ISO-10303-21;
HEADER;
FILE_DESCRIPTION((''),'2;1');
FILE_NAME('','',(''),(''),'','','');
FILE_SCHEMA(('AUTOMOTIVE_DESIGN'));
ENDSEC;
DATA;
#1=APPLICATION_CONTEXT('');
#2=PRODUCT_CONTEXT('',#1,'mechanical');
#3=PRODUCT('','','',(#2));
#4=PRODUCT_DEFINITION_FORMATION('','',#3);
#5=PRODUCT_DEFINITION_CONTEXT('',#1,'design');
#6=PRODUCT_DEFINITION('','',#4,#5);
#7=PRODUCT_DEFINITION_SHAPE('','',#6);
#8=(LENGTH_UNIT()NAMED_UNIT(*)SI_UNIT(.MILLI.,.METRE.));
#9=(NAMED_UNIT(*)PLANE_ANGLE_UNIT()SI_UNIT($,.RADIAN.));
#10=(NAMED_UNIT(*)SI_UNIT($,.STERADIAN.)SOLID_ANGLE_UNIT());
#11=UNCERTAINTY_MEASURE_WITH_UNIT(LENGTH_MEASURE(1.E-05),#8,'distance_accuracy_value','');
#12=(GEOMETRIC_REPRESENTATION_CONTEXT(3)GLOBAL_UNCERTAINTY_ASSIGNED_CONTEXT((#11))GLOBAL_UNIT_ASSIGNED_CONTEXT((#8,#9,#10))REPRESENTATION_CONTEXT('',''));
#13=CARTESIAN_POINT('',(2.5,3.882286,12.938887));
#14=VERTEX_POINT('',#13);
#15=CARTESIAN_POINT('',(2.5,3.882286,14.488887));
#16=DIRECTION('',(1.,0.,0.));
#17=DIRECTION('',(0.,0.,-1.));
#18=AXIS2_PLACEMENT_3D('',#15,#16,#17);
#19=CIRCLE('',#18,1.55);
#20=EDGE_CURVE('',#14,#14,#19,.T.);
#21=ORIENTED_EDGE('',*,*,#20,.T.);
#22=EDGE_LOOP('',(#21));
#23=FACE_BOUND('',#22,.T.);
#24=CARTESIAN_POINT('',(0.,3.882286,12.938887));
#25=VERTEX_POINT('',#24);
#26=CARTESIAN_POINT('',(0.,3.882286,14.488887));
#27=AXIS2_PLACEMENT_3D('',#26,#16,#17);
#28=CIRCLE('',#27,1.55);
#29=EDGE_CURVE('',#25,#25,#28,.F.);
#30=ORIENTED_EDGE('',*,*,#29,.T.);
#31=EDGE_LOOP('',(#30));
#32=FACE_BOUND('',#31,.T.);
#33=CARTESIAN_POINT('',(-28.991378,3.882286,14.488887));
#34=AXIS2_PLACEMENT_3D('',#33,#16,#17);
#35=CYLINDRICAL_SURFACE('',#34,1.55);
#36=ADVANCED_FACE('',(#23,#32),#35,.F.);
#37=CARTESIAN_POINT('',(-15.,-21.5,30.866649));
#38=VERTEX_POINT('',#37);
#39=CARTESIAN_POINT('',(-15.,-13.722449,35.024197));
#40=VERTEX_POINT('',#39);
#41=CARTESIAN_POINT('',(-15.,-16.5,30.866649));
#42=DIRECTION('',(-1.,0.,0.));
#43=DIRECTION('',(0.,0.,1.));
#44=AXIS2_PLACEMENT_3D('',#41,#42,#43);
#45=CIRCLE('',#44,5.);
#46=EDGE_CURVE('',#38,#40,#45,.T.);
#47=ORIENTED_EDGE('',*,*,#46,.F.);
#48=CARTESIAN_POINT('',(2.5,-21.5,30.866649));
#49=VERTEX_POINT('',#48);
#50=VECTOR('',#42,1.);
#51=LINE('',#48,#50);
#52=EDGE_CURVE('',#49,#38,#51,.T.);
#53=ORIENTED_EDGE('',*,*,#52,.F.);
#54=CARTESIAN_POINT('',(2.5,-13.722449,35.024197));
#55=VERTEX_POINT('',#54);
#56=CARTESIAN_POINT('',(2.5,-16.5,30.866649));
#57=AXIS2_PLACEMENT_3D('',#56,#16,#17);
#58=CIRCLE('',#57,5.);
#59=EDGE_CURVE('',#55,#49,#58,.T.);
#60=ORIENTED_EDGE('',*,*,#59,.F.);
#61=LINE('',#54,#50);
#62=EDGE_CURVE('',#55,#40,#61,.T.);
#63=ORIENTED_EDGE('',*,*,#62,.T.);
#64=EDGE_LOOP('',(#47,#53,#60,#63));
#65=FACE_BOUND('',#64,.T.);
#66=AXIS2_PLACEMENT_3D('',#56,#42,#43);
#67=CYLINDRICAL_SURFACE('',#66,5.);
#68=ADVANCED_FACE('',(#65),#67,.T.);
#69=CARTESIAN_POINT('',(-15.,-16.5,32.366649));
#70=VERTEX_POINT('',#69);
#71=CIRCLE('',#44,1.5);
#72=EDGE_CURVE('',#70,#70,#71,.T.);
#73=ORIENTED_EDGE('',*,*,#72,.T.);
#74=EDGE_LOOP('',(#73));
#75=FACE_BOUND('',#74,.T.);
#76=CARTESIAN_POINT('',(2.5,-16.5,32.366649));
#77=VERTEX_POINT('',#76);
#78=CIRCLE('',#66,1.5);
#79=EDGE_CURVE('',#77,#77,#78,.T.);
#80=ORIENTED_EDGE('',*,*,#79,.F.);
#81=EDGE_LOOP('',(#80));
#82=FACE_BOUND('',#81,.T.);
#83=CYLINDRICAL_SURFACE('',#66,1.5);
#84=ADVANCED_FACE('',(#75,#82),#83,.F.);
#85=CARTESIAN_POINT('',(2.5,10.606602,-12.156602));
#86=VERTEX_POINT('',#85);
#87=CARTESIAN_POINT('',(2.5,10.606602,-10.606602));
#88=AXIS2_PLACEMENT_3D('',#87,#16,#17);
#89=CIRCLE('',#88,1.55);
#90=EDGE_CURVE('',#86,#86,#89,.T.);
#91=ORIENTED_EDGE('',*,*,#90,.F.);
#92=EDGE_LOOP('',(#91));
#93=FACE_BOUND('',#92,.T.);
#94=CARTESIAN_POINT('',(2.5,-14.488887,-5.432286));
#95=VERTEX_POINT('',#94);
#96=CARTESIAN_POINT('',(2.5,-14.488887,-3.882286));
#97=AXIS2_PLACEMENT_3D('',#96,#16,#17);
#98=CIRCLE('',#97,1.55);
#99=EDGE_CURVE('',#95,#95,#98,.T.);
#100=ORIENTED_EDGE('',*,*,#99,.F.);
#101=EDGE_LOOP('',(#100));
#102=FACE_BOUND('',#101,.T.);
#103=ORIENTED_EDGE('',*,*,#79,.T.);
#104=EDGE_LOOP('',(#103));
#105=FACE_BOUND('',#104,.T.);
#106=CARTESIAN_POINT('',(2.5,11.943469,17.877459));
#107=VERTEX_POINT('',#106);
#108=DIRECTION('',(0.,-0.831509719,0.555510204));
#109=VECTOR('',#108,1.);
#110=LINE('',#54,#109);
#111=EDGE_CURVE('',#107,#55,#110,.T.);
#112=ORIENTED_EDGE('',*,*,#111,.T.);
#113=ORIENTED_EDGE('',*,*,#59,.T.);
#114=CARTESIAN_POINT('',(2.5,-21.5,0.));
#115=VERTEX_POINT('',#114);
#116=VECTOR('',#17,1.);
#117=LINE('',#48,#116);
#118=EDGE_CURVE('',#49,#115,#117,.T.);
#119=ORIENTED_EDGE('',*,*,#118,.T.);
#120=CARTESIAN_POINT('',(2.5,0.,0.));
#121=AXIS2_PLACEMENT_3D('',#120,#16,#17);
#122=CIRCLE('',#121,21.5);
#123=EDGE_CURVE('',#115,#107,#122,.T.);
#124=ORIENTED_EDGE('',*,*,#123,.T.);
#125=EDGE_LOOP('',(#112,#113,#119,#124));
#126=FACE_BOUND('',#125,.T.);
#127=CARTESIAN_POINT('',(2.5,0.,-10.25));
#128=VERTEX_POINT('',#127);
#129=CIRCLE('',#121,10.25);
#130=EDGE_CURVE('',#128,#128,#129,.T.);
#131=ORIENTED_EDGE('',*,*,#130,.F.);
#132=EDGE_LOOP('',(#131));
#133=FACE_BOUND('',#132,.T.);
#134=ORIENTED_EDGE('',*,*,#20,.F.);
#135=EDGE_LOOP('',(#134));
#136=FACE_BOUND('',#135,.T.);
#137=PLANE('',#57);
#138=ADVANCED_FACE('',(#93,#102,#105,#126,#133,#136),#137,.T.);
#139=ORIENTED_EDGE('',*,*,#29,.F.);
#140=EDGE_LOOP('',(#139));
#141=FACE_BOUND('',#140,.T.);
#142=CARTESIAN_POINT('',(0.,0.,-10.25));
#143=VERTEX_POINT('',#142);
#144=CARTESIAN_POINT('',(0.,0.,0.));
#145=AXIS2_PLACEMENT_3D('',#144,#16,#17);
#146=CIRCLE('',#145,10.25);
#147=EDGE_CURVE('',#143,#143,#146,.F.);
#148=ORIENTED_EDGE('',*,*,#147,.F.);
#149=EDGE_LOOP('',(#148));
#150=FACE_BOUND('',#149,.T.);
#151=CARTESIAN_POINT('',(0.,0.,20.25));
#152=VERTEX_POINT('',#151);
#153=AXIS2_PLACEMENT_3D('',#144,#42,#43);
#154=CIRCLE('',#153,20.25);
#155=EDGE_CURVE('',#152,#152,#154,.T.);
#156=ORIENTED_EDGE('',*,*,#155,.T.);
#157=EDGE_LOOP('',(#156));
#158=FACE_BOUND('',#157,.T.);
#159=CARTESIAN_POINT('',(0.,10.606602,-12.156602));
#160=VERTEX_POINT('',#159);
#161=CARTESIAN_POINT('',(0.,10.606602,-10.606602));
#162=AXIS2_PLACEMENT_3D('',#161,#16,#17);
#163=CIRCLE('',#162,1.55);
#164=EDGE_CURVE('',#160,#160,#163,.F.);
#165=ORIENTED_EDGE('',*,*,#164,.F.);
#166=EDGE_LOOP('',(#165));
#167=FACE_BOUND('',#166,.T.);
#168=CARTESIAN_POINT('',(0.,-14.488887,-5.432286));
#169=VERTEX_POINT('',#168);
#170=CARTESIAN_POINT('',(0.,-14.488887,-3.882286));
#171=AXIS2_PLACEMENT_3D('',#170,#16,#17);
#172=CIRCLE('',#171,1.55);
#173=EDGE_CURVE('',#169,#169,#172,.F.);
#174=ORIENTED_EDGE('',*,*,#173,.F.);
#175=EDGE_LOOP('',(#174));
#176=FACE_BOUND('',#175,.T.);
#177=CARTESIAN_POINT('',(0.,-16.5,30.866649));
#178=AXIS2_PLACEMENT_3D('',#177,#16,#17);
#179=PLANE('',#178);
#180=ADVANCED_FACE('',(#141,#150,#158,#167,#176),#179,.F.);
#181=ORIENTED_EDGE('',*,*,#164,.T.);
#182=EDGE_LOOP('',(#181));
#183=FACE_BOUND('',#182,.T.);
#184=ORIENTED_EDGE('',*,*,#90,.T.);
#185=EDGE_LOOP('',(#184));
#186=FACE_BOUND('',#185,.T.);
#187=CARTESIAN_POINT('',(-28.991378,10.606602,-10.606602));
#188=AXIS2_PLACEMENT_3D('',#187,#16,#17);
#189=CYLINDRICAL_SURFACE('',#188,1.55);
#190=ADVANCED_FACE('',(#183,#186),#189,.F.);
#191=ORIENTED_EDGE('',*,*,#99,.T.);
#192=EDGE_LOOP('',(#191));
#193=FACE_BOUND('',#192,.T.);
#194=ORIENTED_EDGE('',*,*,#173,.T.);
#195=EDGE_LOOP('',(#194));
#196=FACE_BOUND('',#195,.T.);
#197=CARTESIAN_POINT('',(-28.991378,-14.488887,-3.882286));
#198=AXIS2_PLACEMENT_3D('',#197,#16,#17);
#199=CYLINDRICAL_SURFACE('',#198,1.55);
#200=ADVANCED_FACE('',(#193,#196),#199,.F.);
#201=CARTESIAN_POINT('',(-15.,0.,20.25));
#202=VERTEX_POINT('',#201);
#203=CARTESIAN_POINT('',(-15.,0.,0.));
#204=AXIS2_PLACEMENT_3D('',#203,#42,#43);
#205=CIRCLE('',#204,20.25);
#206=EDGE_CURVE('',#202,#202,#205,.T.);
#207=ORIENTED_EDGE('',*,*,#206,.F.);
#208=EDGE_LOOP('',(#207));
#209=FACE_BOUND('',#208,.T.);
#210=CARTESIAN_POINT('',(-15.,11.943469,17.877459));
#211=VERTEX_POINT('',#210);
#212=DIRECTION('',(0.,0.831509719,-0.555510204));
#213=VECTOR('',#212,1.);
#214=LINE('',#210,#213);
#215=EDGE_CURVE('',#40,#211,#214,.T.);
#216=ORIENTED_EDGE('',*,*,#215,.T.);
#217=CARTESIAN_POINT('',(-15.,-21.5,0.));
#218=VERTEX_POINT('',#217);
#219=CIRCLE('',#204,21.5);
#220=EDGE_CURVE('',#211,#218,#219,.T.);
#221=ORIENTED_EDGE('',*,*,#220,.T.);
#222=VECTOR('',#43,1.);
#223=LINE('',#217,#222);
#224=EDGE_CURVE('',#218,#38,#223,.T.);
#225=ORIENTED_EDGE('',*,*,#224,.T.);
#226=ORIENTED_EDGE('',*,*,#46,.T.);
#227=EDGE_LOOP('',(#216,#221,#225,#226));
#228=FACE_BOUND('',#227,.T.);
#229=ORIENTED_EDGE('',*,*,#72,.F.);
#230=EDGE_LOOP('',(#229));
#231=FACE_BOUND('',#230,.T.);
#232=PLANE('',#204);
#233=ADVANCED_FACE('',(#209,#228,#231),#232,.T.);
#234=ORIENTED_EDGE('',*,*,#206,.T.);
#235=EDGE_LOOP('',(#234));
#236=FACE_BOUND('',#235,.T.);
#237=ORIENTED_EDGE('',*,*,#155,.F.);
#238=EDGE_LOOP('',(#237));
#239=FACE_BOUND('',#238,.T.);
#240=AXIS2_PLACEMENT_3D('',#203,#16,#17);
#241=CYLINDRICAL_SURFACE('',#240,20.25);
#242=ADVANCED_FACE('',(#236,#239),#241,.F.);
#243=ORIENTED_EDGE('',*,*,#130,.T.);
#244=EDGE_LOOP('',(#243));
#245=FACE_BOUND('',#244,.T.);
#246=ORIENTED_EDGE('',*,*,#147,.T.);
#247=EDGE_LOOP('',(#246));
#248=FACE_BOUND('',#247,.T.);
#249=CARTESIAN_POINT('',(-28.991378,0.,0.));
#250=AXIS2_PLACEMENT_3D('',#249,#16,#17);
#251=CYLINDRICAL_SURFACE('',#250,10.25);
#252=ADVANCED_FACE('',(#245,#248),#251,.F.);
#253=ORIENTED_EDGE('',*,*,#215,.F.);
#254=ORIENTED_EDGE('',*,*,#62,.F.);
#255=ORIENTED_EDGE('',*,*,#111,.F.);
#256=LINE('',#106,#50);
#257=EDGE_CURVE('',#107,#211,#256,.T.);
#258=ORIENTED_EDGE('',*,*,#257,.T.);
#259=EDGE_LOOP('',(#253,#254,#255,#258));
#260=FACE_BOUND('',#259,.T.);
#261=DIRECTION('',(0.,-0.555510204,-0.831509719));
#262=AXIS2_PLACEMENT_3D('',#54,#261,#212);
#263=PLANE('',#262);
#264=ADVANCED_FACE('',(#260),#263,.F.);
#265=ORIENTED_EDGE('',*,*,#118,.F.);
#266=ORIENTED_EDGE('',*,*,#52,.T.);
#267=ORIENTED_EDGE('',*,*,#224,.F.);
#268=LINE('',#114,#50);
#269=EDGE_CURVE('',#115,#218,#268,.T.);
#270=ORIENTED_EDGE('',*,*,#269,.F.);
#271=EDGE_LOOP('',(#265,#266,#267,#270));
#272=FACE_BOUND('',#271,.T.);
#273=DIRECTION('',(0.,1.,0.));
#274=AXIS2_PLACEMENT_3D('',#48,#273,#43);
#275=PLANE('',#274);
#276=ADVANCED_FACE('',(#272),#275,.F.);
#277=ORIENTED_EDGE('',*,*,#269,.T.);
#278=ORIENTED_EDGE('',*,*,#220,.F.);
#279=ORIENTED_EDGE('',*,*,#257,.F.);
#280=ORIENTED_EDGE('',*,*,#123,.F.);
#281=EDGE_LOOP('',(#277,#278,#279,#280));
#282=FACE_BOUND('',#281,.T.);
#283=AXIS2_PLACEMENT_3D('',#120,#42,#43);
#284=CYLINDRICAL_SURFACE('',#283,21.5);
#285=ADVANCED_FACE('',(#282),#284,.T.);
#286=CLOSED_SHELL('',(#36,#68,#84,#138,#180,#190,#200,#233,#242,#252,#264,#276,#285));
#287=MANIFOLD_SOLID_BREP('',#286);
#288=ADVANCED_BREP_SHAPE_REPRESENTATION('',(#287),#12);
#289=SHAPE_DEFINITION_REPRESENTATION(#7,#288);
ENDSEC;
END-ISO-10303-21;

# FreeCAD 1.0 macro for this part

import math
import FreeCAD as App
import Part
import Sketcher

V = App.Vector
Q = App.Units.Quantity

doc = App.newDocument("Part")
body = doc.addObject("PartDesign::Body", "Body")

# Sketch on YZ plane
sketch1 = body.newObject("Sketcher::SketchObject", "Sketch")
sketch1.AttachmentSupport = (doc.getObject("YZ_Plane"), [""])
sketch1.MapMode = "FlatFace"
sketch1.addGeometry([
    Part.LineSegment(V(-21.5, 30.866649, 0), V(-21.5, 0, 0)),
    Part.ArcOfCircle(Part.Circle(V(0, 0, 0), V(0, 0, 1), 21.5), math.radians(180), math.radians(416.254136)),
    Part.LineSegment(V(11.943469, 17.877459, 0), V(-13.722449, 35.024197, 0)),
    Part.ArcOfCircle(Part.Circle(V(-16.5, 30.866649, 0), V(0, 0, 1), 5), math.radians(56.254136), math.radians(180)),
], False)
sketch1.addConstraint([
    Sketcher.Constraint("Tangent", 0, 2, 1, 1),
    Sketcher.Constraint("Tangent", 1, 2, 2, 1),
    Sketcher.Constraint("Tangent", 2, 2, 3, 1),
    Sketcher.Constraint("Tangent", 3, 2, 0, 1),
    Sketcher.Constraint("Vertical", 0),
    Sketcher.Constraint("Coincident", 1, 3, -1, 1),
    Sketcher.Constraint("Radius", 3, Q("5 mm")),
    Sketcher.Constraint("Radius", 1, Q("21.5 mm")),
    Sketcher.Constraint("DistanceY", 0, 2, 0, 1, Q("30.866649 mm")),
])
pad1 = body.newObject("PartDesign::Pad", "Pad")
pad1.Profile = sketch1
pad1.Length = 2.5

# Sketch on YZ plane
sketch2 = body.newObject("Sketcher::SketchObject", "Sketch001")
sketch2.AttachmentSupport = (doc.getObject("YZ_Plane"), [""])
sketch2.MapMode = "FlatFace"
sketch2.AttachmentOffset = App.Placement(V(0, 0, -15), App.Rotation())
sketch2.addGeometry([
    Part.LineSegment(V(-21.5, 0, 0), V(-21.5, 30.866649, 0)),  # 0
    Part.ArcOfCircle(Part.Circle(V(-16.5, 30.866649, 0), V(0, 0, 1), 5), math.radians(56.254136), math.radians(180)),  # 1
    Part.LineSegment(V(-13.722449, 35.024197, 0), V(11.943469, 17.877459, 0)),  # 2
    Part.ArcOfCircle(Part.Circle(V(0, 0, 0), V(0, 0, 1), 21.5), math.radians(180), math.radians(416.254136)),  # 3
    Part.Circle(V(0, 0, 0), V(0, 0, 1), 20.25),  # 4
], False)
sketch2.addConstraint([
    Sketcher.Constraint("Tangent", 0, 2, 1, 2),
    Sketcher.Constraint("Tangent", 1, 1, 2, 1),
    Sketcher.Constraint("Tangent", 2, 2, 3, 2),
    Sketcher.Constraint("Tangent", 3, 1, 0, 1),
    Sketcher.Constraint("Vertical", 0),
    Sketcher.Constraint("Coincident", 3, 3, -1, 1),
    Sketcher.Constraint("Coincident", 4, 3, -1, 1),
    Sketcher.Constraint("Radius", 1, Q("5 mm")),
    Sketcher.Constraint("Diameter", 4, Q("40.5 mm")),
    Sketcher.Constraint("Radius", 3, Q("21.5 mm")),
    Sketcher.Constraint("DistanceY", 0, 1, 0, 2, Q("30.866649 mm")),
])
pad2 = body.newObject("PartDesign::Pad", "Pad001")
pad2.Profile = sketch2
pad2.Length = 15

# Sketch on YZ plane
sketch3 = body.newObject("Sketcher::SketchObject", "Sketch002")
sketch3.AttachmentSupport = (doc.getObject("YZ_Plane"), [""])
sketch3.MapMode = "FlatFace"
sketch3.AttachmentOffset = App.Placement(V(0, 0, 2.5), App.Rotation())
sketch3.addGeometry([
    Part.Circle(V(10.606602, -10.606602, 0), V(0, 0, 1), 1.55),
    Part.Circle(V(-14.488887, -3.882286, 0), V(0, 0, 1), 1.55),
    Part.Circle(V(3.882286, 14.488887, 0), V(0, 0, 1), 1.55),
    Part.Circle(V(0, 0, 0), V(0, 0, 1), 10.25),
], False)
sketch3.addConstraint([
    Sketcher.Constraint("Coincident", 3, 3, -1, 1),
    Sketcher.Constraint("Equal", 0, 1),
    Sketcher.Constraint("Equal", 1, 2),
    Sketcher.Constraint("Diameter", 0, Q("3.1 mm")),
    Sketcher.Constraint("Diameter", 3, Q("20.5 mm")),
    Sketcher.Constraint("DistanceX", -1, 1, 0, 3, Q("10.606602 mm")),
    Sketcher.Constraint("DistanceY", 0, 3, -1, 1, Q("10.606602 mm")),
    Sketcher.Constraint("DistanceX", 1, 3, 0, 3, Q("25.095489 mm")),
    Sketcher.Constraint("DistanceY", 0, 3, 2, 3, Q("25.095489 mm")),
    Sketcher.Constraint("DistanceY", 1, 3, -1, 1, Q("3.882286 mm")),
    Sketcher.Constraint("DistanceX", -1, 1, 2, 3, Q("3.882286 mm")),
])
pocket1 = body.newObject("PartDesign::Pocket", "Pocket")
pocket1.Profile = sketch3
pocket1.Length = 2.5

# Sketch on YZ plane
sketch4 = body.newObject("Sketcher::SketchObject", "Sketch003")
sketch4.AttachmentSupport = (doc.getObject("YZ_Plane"), [""])
sketch4.MapMode = "FlatFace"
sketch4.AttachmentOffset = App.Placement(V(0, 0, -15), App.Rotation())
sketch4.addGeometry(Part.Circle(V(-16.5, 30.866649, 0), V(0, 0, 1), 1.5), False)
sketch4.addConstraint([
    Sketcher.Constraint("Diameter", 0, Q("3 mm")),
    Sketcher.Constraint("DistanceX", 0, 3, -1, 1, Q("16.5 mm")),
    Sketcher.Constraint("DistanceY", -1, 1, 0, 3, Q("30.866649 mm")),
])
pocket2 = body.newObject("PartDesign::Pocket", "Pocket001")
pocket2.Profile = sketch4
pocket2.Type = "ThroughAll"
pocket2.Reversed = True

doc.recompute()
